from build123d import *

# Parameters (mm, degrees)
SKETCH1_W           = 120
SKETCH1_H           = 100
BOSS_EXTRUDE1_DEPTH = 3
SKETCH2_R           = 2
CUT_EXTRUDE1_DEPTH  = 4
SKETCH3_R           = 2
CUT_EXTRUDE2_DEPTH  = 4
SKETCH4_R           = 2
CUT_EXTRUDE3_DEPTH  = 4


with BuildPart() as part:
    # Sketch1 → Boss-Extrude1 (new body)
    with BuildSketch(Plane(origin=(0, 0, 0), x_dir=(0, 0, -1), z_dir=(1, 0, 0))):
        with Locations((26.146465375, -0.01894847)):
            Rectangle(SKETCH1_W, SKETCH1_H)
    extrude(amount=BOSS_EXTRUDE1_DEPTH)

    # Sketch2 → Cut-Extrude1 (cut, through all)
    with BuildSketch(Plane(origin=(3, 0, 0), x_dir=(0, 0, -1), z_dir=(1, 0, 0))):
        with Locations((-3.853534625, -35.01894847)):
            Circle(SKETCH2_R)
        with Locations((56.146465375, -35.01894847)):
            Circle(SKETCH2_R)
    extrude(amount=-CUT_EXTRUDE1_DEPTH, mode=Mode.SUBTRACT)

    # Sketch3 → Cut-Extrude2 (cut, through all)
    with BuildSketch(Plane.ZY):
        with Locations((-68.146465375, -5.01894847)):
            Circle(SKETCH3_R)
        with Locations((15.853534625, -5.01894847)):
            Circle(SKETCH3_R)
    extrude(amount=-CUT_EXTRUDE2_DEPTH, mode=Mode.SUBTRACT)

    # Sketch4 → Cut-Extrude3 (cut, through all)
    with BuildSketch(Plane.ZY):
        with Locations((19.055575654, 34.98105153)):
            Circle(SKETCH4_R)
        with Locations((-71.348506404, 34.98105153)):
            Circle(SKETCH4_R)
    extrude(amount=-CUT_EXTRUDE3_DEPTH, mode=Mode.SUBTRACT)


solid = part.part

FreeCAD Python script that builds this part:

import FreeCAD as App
import Part
import Sketcher
from FreeCAD import Vector
Q = App.Units.Quantity


def add_polygon(sketch, points):
    """Adds a closed chain of lines whose ends are joined by coincident constraints."""
    first, n = sketch.GeometryCount, len(points)
    for a, b in zip(points, points[1:] + points[:1]):
        sketch.addGeometry(Part.LineSegment(App.Vector(*a, 0), App.Vector(*b, 0)), False)
    for i in range(n):
        sketch.addConstraint(Sketcher.Constraint("Coincident", first + i, 2, first + (i + 1) % n, 1))

doc = App.newDocument("Part")
body = doc.addObject("PartDesign::Body", "Body")

# Sketch on YZ plane
sketch1 = body.newObject("Sketcher::SketchObject", "Sketch")
sketch1.AttachmentSupport = (doc.getObject("YZ_Plane"), [""])
sketch1.MapMode = "FlatFace"
add_polygon(sketch1, [(50, 34), (-50, 34), (-50, -86), (50, -86)])  # lines 0-3
sketch1.addConstraint(Sketcher.Constraint("Horizontal", 0))
sketch1.addConstraint(Sketcher.Constraint("Vertical", 1))
sketch1.addConstraint(Sketcher.Constraint("Horizontal", 2))
sketch1.addConstraint(Sketcher.Constraint("Vertical", 3))
sketch1.addConstraint(Sketcher.Constraint("DistanceX", 0, 2, 0, 1, Q("100 mm")))
sketch1.addConstraint(Sketcher.Constraint("DistanceY", 1, 2, 1, 1, Q("120 mm")))
sketch1.addConstraint(Sketcher.Constraint("DistanceX", 0, 2, -1, 1, Q("50.018948 mm")))
sketch1.addConstraint(Sketcher.Constraint("DistanceY", -1, 1, 0, 2, Q("33.853535 mm")))
pad1 = body.newObject("PartDesign::Pad", "Pad")
pad1.Profile = sketch1
pad1.Length = 3

# Sketch on YZ plane
sketch2 = body.newObject("Sketcher::SketchObject", "Sketch001")
sketch2.AttachmentSupport = (doc.getObject("YZ_Plane"), [""])
sketch2.MapMode = "FlatFace"
sketch2.AttachmentOffset = App.Placement(Vector(0, 0, 3), App.Rotation())
sketch2.addGeometry(Part.Circle(Vector(-35, 3.9, 0), Vector(0, 0, 1), 2), False)
sketch2.addGeometry(Part.Circle(Vector(-35, -56.1, 0), Vector(0, 0, 1), 2), False)
sketch2.addConstraint(Sketcher.Constraint("Equal", 0, 1))
sketch2.addConstraint(Sketcher.Constraint("Vertical", 0, 3, 1, 3))
sketch2.addConstraint(Sketcher.Constraint("Diameter", 0, Q("4 mm")))
sketch2.addConstraint(Sketcher.Constraint("DistanceY", 1, 3, 0, 3, Q("60 mm")))
sketch2.addConstraint(Sketcher.Constraint("DistanceX", 0, 3, -1, 1, Q("35.018948 mm")))
sketch2.addConstraint(Sketcher.Constraint("DistanceY", -1, 1, 0, 3, Q("3.853535 mm")))
pocket1 = body.newObject("PartDesign::Pocket", "Pocket")
pocket1.Profile = sketch2
pocket1.Type = "ThroughAll"

# Sketch on YZ plane
sketch3 = body.newObject("Sketcher::SketchObject", "Sketch002")
sketch3.AttachmentSupport = (doc.getObject("YZ_Plane"), [""])
sketch3.MapMode = "FlatFace"
sketch3.addGeometry(Part.Circle(Vector(-5, -68.1, 0), Vector(0, 0, 1), 2), False)
sketch3.addGeometry(Part.Circle(Vector(-5, 15.9, 0), Vector(0, 0, 1), 2), False)
sketch3.addConstraint(Sketcher.Constraint("Equal", 0, 1))
sketch3.addConstraint(Sketcher.Constraint("Vertical", 0, 3, 1, 3))
sketch3.addConstraint(Sketcher.Constraint("Diameter", 0, Q("4 mm")))
sketch3.addConstraint(Sketcher.Constraint("DistanceY", 0, 3, 1, 3, Q("84 mm")))
sketch3.addConstraint(Sketcher.Constraint("DistanceX", 0, 3, -1, 1, Q("5.018948 mm")))
sketch3.addConstraint(Sketcher.Constraint("DistanceY", 0, 3, -1, 1, Q("68.146465 mm")))
pocket2 = body.newObject("PartDesign::Pocket", "Pocket001")
pocket2.Profile = sketch3
pocket2.Type = "ThroughAll"
pocket2.Reversed = True

# Sketch on YZ plane
sketch4 = body.newObject("Sketcher::SketchObject", "Sketch003")
sketch4.AttachmentSupport = (doc.getObject("YZ_Plane"), [""])
sketch4.MapMode = "FlatFace"
sketch4.addGeometry(Part.Circle(Vector(35, 19.1, 0), Vector(0, 0, 1), 2), False)
sketch4.addGeometry(Part.Circle(Vector(35, -71.3, 0), Vector(0, 0, 1), 2), False)
sketch4.addConstraint(Sketcher.Constraint("Equal", 0, 1))
sketch4.addConstraint(Sketcher.Constraint("Vertical", 0, 3, 1, 3))
sketch4.addConstraint(Sketcher.Constraint("Diameter", 0, Q("4 mm")))
sketch4.addConstraint(Sketcher.Constraint("DistanceX", -1, 1, 0, 3, Q("34.981052 mm")))
sketch4.addConstraint(Sketcher.Constraint("DistanceY", -1, 1, 0, 3, Q("19.055576 mm")))
sketch4.addConstraint(Sketcher.Constraint("DistanceY", 1, 3, -1, 1, Q("71.348506 mm")))
pocket3 = body.newObject("PartDesign::Pocket", "Pocket002")
pocket3.Profile = sketch4
pocket3.Type = "ThroughAll"
pocket3.Reversed = True

doc.recompute()
